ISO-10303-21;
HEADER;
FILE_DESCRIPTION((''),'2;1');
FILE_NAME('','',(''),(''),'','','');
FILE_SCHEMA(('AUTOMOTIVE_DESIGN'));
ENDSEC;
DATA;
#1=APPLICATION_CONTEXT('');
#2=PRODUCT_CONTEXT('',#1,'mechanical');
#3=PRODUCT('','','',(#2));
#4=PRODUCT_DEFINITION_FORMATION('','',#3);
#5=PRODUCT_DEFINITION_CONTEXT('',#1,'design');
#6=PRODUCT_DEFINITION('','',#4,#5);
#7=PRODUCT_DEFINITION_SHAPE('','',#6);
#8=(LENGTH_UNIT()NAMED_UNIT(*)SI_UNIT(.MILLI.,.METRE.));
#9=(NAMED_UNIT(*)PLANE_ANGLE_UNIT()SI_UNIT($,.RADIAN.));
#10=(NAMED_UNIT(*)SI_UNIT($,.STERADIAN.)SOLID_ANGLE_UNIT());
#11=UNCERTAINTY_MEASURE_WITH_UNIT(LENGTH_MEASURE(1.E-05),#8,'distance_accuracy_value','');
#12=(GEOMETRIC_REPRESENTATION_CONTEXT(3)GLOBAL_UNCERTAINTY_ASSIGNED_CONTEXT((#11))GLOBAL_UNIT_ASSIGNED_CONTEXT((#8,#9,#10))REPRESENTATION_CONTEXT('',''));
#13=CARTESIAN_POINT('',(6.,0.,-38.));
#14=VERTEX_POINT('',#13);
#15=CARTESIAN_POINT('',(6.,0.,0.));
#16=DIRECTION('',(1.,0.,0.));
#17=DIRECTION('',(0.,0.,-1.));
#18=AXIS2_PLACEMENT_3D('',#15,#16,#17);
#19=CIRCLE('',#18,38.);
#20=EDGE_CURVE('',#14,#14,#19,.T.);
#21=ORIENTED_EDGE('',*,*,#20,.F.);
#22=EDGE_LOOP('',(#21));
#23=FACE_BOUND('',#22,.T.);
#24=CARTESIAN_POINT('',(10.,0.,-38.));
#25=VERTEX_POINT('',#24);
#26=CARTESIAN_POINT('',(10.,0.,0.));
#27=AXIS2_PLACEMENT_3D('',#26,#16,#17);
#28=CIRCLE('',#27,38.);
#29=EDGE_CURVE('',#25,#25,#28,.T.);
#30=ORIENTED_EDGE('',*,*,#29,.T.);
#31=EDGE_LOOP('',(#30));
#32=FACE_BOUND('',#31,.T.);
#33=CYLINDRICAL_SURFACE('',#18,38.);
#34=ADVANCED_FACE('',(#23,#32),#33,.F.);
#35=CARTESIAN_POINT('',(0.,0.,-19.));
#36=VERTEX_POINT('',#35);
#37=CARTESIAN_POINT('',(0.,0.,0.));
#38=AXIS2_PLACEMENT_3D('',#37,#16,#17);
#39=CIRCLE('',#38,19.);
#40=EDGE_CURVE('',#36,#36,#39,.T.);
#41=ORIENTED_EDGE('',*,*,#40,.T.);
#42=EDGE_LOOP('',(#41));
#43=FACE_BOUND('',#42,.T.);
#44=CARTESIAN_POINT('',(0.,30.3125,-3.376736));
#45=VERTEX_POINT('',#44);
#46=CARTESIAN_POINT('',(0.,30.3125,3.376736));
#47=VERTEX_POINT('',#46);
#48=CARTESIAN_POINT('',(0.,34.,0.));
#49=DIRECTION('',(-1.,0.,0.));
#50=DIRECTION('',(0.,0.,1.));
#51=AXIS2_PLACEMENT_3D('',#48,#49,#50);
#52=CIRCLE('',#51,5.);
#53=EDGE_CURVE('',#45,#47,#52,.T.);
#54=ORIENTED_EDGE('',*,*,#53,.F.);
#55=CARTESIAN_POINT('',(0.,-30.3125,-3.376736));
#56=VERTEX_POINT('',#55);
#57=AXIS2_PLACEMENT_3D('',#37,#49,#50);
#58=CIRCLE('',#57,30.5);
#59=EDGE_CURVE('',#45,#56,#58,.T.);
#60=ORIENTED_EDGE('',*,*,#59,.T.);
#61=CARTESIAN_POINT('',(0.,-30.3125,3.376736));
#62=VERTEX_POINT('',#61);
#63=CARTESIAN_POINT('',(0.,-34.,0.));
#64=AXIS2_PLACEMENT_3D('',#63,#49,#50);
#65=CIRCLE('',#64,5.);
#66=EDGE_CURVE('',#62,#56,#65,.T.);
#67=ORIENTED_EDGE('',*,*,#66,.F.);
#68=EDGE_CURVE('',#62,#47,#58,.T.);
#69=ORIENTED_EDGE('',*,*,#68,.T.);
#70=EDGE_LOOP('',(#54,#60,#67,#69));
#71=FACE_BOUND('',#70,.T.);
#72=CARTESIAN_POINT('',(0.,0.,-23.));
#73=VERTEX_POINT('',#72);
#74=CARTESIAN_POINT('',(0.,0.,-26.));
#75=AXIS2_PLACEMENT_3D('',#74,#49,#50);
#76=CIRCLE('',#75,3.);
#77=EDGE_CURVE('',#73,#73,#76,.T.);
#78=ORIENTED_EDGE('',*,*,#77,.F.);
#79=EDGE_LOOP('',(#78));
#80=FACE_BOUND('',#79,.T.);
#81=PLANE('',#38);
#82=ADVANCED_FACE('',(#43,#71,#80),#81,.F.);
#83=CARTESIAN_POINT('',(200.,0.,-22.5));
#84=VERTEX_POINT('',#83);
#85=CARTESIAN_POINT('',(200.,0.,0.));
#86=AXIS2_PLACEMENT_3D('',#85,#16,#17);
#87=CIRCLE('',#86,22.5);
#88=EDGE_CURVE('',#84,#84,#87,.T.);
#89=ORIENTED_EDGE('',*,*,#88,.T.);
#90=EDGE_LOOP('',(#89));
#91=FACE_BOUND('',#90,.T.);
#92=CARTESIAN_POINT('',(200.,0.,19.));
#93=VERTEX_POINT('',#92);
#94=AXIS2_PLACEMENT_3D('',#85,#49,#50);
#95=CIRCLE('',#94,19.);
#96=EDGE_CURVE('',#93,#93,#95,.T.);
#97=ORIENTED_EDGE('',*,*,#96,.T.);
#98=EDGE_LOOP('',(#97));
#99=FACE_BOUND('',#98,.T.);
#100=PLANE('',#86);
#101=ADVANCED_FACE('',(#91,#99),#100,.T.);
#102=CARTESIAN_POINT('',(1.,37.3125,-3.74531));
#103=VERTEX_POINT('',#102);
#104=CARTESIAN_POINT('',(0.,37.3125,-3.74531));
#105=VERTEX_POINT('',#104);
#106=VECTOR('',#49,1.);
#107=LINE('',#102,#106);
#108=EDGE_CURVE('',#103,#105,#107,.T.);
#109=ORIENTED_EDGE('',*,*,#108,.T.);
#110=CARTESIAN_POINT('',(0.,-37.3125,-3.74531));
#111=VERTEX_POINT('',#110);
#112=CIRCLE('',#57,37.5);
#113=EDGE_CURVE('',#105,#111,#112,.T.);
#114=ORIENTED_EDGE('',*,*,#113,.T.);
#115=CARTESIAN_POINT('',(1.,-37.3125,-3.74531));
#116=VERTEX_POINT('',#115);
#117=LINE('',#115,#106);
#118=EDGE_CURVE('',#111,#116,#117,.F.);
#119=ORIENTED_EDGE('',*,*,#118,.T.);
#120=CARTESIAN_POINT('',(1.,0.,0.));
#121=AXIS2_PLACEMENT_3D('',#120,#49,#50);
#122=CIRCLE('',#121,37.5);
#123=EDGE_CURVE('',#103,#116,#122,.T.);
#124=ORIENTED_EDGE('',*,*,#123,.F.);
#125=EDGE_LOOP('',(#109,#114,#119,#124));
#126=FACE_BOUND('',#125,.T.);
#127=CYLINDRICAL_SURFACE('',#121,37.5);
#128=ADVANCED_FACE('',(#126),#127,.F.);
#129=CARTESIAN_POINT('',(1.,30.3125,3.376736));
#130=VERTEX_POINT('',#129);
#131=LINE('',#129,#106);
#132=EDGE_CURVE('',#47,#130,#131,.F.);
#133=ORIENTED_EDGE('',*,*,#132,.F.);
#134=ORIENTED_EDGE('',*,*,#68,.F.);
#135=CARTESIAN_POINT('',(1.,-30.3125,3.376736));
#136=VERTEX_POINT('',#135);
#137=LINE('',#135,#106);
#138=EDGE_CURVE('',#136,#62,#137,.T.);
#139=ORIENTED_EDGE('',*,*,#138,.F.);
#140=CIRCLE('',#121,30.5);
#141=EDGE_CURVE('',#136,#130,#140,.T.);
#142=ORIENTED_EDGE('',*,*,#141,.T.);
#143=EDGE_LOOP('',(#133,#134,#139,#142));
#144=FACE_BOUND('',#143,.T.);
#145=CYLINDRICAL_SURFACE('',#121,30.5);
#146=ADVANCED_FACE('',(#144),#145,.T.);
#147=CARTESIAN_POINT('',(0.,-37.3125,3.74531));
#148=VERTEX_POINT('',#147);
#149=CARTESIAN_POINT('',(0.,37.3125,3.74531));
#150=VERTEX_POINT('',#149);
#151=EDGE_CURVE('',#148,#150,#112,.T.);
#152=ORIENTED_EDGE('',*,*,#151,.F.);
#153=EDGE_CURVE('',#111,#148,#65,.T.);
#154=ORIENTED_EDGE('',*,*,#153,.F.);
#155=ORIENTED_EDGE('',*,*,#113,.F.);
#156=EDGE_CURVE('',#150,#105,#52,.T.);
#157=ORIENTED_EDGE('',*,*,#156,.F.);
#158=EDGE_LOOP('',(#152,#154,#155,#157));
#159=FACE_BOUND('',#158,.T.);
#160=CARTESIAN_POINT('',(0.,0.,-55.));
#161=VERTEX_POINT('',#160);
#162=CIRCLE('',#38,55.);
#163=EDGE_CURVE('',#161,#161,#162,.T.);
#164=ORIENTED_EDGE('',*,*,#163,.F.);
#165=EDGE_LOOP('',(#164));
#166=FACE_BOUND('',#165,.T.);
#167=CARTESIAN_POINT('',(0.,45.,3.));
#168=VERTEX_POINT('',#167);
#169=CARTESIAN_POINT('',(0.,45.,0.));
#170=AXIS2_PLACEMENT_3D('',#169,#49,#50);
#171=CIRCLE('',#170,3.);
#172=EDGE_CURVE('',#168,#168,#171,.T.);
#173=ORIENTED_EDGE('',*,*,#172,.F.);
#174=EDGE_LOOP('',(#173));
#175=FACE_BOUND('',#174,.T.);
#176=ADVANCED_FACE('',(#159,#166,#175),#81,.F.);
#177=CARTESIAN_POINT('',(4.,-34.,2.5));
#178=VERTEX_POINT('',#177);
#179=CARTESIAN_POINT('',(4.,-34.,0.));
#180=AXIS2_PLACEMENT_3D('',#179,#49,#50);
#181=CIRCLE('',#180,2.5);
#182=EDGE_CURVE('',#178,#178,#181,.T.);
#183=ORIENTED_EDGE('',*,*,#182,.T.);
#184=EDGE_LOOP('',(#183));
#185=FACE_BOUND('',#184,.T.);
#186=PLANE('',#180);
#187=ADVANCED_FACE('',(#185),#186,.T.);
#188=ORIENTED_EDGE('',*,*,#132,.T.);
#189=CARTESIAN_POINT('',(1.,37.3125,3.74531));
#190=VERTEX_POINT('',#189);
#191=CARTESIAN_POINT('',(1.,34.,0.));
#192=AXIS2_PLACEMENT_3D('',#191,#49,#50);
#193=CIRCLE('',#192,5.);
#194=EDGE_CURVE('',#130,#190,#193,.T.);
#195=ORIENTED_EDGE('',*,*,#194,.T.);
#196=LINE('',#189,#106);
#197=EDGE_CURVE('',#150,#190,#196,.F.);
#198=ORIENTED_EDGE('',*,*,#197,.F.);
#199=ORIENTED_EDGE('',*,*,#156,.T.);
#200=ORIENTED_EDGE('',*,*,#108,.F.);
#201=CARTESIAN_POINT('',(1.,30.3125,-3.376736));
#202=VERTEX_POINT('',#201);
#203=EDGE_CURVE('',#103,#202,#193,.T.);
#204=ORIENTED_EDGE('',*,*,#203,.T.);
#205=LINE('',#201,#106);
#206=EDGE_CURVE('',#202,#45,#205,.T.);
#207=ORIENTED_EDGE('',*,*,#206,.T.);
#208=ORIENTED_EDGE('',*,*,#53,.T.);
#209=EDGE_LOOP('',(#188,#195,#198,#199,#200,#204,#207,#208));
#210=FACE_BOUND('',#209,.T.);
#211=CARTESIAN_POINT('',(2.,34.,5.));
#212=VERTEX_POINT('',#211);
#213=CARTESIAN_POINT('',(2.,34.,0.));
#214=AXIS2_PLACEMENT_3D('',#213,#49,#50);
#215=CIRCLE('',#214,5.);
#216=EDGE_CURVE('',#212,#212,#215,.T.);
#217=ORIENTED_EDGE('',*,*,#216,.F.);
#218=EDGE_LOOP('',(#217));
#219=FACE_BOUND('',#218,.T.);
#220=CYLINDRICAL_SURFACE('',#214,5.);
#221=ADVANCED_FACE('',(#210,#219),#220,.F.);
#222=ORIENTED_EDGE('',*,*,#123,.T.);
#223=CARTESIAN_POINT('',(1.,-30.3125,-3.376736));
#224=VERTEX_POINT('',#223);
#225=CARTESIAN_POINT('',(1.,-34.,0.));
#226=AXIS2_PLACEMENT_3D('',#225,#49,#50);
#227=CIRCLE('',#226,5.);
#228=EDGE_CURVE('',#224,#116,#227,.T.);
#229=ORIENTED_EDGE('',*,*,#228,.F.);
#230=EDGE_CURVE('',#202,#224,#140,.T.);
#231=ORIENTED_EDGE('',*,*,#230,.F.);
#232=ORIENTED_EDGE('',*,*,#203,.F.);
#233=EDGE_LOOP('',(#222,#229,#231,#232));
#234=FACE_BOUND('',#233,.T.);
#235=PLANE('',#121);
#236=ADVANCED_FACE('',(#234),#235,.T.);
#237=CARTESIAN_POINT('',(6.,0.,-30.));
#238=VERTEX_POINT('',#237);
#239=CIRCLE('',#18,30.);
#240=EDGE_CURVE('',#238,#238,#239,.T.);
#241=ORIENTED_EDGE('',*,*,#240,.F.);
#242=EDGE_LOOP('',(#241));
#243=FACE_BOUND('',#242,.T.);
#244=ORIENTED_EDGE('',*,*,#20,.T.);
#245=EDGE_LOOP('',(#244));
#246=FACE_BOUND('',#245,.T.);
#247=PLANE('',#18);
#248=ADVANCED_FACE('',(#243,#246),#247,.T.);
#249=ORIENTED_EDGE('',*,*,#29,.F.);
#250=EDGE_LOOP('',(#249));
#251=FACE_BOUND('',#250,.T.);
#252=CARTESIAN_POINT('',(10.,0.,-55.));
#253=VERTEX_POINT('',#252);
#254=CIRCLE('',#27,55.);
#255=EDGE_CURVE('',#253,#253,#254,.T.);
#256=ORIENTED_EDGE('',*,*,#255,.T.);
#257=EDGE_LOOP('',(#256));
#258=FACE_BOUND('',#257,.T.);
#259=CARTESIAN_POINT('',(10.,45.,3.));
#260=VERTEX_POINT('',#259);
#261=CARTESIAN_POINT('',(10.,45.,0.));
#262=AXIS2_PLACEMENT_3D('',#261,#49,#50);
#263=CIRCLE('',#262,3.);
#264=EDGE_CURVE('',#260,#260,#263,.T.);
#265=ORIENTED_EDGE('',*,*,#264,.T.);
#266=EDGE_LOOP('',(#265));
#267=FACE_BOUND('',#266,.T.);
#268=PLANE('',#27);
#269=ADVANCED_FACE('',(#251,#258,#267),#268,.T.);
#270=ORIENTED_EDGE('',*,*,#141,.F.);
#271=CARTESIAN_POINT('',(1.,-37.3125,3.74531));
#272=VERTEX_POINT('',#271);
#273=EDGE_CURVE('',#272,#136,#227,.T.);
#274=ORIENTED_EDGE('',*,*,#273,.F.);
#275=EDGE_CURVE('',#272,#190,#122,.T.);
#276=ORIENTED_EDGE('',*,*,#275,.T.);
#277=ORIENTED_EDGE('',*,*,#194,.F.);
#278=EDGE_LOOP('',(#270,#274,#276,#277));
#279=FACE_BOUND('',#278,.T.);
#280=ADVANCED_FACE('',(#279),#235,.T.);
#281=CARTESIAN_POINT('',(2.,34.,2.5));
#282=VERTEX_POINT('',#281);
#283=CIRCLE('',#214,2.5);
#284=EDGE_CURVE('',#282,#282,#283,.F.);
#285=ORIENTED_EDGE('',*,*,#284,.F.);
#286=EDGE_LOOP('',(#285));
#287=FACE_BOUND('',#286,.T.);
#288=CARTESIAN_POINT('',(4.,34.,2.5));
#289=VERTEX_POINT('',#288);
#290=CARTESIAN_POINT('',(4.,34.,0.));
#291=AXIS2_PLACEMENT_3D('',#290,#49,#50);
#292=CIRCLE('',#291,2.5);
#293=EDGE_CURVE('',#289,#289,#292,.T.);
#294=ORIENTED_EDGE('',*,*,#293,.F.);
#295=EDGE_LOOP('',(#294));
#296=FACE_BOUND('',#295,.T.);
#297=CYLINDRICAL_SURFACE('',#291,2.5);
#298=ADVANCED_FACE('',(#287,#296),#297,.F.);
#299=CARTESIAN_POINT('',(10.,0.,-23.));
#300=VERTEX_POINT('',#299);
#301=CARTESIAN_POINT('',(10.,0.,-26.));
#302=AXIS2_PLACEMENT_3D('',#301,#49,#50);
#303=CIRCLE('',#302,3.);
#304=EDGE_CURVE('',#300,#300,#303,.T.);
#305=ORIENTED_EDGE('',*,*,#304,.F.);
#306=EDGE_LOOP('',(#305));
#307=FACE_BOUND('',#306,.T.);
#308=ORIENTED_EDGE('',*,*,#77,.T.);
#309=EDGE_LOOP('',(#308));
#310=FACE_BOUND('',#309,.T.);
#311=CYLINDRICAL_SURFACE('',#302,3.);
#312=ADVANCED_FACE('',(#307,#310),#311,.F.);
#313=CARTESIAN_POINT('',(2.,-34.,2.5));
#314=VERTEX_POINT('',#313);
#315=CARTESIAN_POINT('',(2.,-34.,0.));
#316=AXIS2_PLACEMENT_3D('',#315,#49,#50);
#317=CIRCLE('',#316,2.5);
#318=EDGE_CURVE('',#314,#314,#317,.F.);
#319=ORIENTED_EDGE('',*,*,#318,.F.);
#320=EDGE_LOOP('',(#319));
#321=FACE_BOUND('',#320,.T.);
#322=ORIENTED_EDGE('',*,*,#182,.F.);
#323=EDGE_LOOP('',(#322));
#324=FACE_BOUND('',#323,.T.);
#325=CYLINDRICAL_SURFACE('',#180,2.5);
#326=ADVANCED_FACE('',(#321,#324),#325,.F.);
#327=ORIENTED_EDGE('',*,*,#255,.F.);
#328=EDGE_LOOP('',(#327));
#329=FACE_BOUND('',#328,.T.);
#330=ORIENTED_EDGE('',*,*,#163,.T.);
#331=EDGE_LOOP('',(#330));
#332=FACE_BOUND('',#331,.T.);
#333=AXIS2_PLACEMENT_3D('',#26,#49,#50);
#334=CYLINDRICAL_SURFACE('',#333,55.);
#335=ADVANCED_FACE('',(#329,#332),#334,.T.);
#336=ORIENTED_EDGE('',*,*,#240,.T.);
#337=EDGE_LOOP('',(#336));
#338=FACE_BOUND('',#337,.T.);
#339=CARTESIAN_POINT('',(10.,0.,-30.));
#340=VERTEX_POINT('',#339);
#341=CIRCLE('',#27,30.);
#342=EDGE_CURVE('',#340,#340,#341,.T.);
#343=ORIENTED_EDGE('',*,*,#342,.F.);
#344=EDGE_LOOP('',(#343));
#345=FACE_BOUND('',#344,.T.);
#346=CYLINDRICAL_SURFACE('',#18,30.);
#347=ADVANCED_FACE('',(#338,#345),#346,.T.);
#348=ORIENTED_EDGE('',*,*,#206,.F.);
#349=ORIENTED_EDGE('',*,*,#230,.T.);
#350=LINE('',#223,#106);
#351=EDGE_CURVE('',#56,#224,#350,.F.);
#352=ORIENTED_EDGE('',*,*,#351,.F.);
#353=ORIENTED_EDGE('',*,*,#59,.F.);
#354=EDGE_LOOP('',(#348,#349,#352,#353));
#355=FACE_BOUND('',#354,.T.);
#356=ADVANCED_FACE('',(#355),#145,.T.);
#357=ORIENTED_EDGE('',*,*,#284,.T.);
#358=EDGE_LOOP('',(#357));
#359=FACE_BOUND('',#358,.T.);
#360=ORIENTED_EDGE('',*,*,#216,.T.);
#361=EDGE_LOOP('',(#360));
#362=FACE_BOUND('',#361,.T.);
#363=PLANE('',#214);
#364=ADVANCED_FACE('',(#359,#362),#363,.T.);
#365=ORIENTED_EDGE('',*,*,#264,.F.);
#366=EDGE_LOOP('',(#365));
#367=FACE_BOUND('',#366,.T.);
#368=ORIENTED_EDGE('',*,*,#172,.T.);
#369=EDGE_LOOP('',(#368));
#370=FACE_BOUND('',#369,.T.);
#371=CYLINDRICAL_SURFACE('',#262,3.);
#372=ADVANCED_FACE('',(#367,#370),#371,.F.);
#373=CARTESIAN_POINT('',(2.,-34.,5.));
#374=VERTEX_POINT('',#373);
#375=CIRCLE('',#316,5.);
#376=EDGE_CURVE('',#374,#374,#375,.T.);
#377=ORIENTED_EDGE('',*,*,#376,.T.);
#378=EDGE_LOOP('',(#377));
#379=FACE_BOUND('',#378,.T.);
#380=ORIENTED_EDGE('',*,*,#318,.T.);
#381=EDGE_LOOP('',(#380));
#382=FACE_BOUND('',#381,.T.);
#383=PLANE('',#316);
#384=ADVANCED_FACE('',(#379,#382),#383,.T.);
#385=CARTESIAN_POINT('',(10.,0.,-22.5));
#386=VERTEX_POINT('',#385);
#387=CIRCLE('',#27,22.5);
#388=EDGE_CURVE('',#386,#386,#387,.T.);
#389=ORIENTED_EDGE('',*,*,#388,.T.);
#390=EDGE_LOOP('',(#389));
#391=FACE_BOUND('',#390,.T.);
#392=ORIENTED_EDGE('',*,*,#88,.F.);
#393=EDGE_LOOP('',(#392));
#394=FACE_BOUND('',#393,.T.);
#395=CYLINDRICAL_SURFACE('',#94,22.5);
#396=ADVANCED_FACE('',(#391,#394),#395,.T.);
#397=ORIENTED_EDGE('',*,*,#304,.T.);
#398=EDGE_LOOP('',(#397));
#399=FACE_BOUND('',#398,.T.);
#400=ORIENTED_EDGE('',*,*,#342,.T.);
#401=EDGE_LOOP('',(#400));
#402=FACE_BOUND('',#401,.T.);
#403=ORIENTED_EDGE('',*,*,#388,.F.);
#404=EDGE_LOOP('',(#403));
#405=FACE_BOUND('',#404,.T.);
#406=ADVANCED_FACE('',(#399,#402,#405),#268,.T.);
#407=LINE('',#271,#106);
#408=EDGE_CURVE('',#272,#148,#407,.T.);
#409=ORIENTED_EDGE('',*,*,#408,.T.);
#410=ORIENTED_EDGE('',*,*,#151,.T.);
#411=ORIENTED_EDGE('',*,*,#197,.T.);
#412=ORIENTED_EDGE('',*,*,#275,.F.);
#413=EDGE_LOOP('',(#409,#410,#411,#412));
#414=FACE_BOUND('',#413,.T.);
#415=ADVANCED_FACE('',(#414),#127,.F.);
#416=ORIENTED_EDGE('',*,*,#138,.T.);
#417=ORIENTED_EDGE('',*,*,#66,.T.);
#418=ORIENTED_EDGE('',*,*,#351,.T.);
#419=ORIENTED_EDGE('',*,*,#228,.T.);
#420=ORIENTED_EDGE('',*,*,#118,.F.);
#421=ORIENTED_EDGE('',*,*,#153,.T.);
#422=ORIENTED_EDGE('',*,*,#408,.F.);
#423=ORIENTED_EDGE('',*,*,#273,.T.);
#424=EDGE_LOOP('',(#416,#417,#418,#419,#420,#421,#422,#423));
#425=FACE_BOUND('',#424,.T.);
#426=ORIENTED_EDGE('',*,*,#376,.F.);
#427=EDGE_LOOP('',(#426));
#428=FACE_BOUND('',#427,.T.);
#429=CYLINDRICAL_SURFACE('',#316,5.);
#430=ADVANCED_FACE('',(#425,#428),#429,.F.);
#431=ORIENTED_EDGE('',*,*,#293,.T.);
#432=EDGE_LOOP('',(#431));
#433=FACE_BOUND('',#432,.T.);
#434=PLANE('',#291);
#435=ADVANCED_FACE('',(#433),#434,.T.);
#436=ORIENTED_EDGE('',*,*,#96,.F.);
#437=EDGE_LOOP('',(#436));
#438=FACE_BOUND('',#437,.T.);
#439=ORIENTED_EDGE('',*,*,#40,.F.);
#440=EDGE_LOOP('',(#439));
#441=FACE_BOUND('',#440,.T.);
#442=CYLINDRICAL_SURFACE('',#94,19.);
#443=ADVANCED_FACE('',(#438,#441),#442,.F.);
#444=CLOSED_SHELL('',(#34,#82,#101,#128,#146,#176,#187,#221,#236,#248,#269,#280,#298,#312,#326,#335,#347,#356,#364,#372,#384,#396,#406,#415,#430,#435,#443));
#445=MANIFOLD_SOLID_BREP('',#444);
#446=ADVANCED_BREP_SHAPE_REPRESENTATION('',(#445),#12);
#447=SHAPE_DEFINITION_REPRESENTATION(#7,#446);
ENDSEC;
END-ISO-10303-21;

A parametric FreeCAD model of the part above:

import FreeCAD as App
import Part
import Sketcher
from FreeCAD import Vector
Q = App.Units.Quantity

doc = App.newDocument("Part")
body = doc.addObject("PartDesign::Body", "Body")

# Sketch on YZ plane
sketch1 = body.newObject("Sketcher::SketchObject", "Sketch")
sketch1.AttachmentSupport = (doc.getObject("YZ_Plane"), [""])
sketch1.MapMode = "FlatFace"
sketch1.addGeometry(Part.Circle(Vector(0, 0, 0), Vector(0, 0, 1), 55), False)
sketch1.addConstraint([
    Sketcher.Constraint("Coincident", 0, 3, -1, 1),
    Sketcher.Constraint("Diameter", 0, Q("110 mm")),
])
pad1 = body.newObject("PartDesign::Pad", "Pad")
pad1.Profile = sketch1
pad1.Length = 10

# Sketch on YZ plane
sketch2 = body.newObject("Sketcher::SketchObject", "Sketch001")
sketch2.AttachmentSupport = (doc.getObject("YZ_Plane"), [""])
sketch2.MapMode = "FlatFace"
sketch2.AttachmentOffset = App.Placement(Vector(0, 0, 10), App.Rotation())
sketch2.addGeometry(Part.Circle(Vector(0, 0, 0), Vector(0, 0, 1), 22), False)
sketch2.addConstraint([
    Sketcher.Constraint("Coincident", 0, 3, -1, 1),
    Sketcher.Constraint("Diameter", 0, Q("45 mm")),
])
pad2 = body.newObject("PartDesign::Pad", "Pad001")
pad2.Profile = sketch2
pad2.Length = 190

# Sketch on YZ plane
sketch3 = body.newObject("Sketcher::SketchObject", "Sketch002")
sketch3.AttachmentSupport = (doc.getObject("YZ_Plane"), [""])
sketch3.MapMode = "FlatFace"
sketch3.addGeometry(Part.Circle(Vector(0, 0, 0), Vector(0, 0, 1), 19), False)
sketch3.addConstraint([
    Sketcher.Constraint("Coincident", 0, 3, -1, 1),
    Sketcher.Constraint("Diameter", 0, Q("38 mm")),
])
pocket1 = body.newObject("PartDesign::Pocket", "Pocket")
pocket1.Profile = sketch3
pocket1.Type = "ThroughAll"
pocket1.Midplane = True

# Sketch on YZ plane
sketch4 = body.newObject("Sketcher::SketchObject", "Sketch003")
sketch4.AttachmentSupport = (doc.getObject("YZ_Plane"), [""])
sketch4.MapMode = "FlatFace"
sketch4.addGeometry([
    Part.Circle(Vector(0, 0, 0), Vector(0, 0, 1), 38),
    Part.Circle(Vector(0, 0, 0), Vector(0, 0, 1), 30),
], False)
sketch4.addConstraint([
    Sketcher.Constraint("Coincident", 0, 3, -1, 1),
    Sketcher.Constraint("Coincident", 1, 3, -1, 1),
    Sketcher.Constraint("Diameter", 0, Q("75 mm")),
    Sketcher.Constraint("Diameter", 1, Q("61 mm")),
])
pocket2 = body.newObject("PartDesign::Pocket", "Pocket001")
pocket2.Profile = sketch4
pocket2.Length = 1
pocket2.Reversed = True

# Sketch on YZ plane
sketch5 = body.newObject("Sketcher::SketchObject", "Sketch004")
sketch5.AttachmentSupport = (doc.getObject("YZ_Plane"), [""])
sketch5.MapMode = "FlatFace"
sketch5.AttachmentOffset = App.Placement(Vector(0, 0, 10), App.Rotation())
sketch5.addGeometry([
    Part.Circle(Vector(0, 0, 0), Vector(0, 0, 1), 38),
    Part.Circle(Vector(0, 0, 0), Vector(0, 0, 1), 30),
], False)
sketch5.addConstraint([
    Sketcher.Constraint("Coincident", 0, 3, -1, 1),
    Sketcher.Constraint("Coincident", 1, 3, -1, 1),
    Sketcher.Constraint("Diameter", 0, Q("76 mm")),
    Sketcher.Constraint("Diameter", 1, Q("60 mm")),
])
pocket3 = body.newObject("PartDesign::Pocket", "Pocket002")
pocket3.Profile = sketch5
pocket3.Length = 4

# Sketch on YZ plane
sketch6 = body.newObject("Sketcher::SketchObject", "Sketch005")
sketch6.AttachmentSupport = (doc.getObject("YZ_Plane"), [""])
sketch6.MapMode = "FlatFace"
sketch6.addGeometry([
    Part.Circle(Vector(34, 0, 0), Vector(0, 0, 1), 2.5),
    Part.Circle(Vector(-34, 0, 0), Vector(0, 0, 1), 2.5),
], False)
sketch6.addConstraint([
    Sketcher.Constraint("Equal", 0, 1),
    Sketcher.Constraint("Symmetric", 0, 3, 1, 3, -1, 1),
    Sketcher.Constraint("PointOnObject", 0, 3, -1),
    Sketcher.Constraint("Diameter", 0, Q("5 mm")),
    Sketcher.Constraint("DistanceX", -1, 1, 0, 3, Q("34 mm")),
])
pocket4 = body.newObject("PartDesign::Pocket", "Pocket003")
pocket4.Profile = sketch6
pocket4.Length = 4
pocket4.Reversed = True

# Sketch on YZ plane
sketch7 = body.newObject("Sketcher::SketchObject", "Sketch006")
sketch7.AttachmentSupport = (doc.getObject("YZ_Plane"), [""])
sketch7.MapMode = "FlatFace"
sketch7.addGeometry([
    Part.Circle(Vector(-34, 0, 0), Vector(0, 0, 1), 5),
    Part.Circle(Vector(34, 0, 0), Vector(0, 0, 1), 5),
], False)
sketch7.addConstraint([
    Sketcher.Constraint("Equal", 0, 1),
    Sketcher.Constraint("Symmetric", 0, 3, 1, 3, -1, 1),
    Sketcher.Constraint("PointOnObject", 0, 3, -1),
    Sketcher.Constraint("Diameter", 0, Q("10 mm")),
    Sketcher.Constraint("DistanceX", 0, 3, -1, 1, Q("34 mm")),
])
pocket5 = body.newObject("PartDesign::Pocket", "Pocket004")
pocket5.Profile = sketch7
pocket5.Length = 2
pocket5.Reversed = True

# Sketch on YZ plane
sketch8 = body.newObject("Sketcher::SketchObject", "Sketch007")
sketch8.AttachmentSupport = (doc.getObject("YZ_Plane"), [""])
sketch8.MapMode = "FlatFace"
sketch8.addGeometry(Part.Circle(Vector(0, -26, 0), Vector(0, 0, 1), 3), False)
sketch8.addConstraint([
    Sketcher.Constraint("PointOnObject", 0, 3, -2),
    Sketcher.Constraint("Diameter", 0, Q("6 mm")),
    Sketcher.Constraint("DistanceY", 0, 3, -1, 1, Q("26 mm")),
])
pocket6 = body.newObject("PartDesign::Pocket", "Pocket005")
pocket6.Profile = sketch8
pocket6.Length = 10
pocket6.Reversed = True

# Sketch on YZ plane
sketch9 = body.newObject("Sketcher::SketchObject", "Sketch008")
sketch9.AttachmentSupport = (doc.getObject("YZ_Plane"), [""])
sketch9.MapMode = "FlatFace"
sketch9.addGeometry(Part.Circle(Vector(45, 0, 0), Vector(0, 0, 1), 3), False)
sketch9.addConstraint([
    Sketcher.Constraint("PointOnObject", 0, 3, -1),
    Sketcher.Constraint("Diameter", 0, Q("6 mm")),
    Sketcher.Constraint("DistanceX", -1, 1, 0, 3, Q("45 mm")),
])
pocket7 = body.newObject("PartDesign::Pocket", "Pocket006")
pocket7.Profile = sketch9
pocket7.Length = 10
pocket7.Reversed = True

doc.recompute()
